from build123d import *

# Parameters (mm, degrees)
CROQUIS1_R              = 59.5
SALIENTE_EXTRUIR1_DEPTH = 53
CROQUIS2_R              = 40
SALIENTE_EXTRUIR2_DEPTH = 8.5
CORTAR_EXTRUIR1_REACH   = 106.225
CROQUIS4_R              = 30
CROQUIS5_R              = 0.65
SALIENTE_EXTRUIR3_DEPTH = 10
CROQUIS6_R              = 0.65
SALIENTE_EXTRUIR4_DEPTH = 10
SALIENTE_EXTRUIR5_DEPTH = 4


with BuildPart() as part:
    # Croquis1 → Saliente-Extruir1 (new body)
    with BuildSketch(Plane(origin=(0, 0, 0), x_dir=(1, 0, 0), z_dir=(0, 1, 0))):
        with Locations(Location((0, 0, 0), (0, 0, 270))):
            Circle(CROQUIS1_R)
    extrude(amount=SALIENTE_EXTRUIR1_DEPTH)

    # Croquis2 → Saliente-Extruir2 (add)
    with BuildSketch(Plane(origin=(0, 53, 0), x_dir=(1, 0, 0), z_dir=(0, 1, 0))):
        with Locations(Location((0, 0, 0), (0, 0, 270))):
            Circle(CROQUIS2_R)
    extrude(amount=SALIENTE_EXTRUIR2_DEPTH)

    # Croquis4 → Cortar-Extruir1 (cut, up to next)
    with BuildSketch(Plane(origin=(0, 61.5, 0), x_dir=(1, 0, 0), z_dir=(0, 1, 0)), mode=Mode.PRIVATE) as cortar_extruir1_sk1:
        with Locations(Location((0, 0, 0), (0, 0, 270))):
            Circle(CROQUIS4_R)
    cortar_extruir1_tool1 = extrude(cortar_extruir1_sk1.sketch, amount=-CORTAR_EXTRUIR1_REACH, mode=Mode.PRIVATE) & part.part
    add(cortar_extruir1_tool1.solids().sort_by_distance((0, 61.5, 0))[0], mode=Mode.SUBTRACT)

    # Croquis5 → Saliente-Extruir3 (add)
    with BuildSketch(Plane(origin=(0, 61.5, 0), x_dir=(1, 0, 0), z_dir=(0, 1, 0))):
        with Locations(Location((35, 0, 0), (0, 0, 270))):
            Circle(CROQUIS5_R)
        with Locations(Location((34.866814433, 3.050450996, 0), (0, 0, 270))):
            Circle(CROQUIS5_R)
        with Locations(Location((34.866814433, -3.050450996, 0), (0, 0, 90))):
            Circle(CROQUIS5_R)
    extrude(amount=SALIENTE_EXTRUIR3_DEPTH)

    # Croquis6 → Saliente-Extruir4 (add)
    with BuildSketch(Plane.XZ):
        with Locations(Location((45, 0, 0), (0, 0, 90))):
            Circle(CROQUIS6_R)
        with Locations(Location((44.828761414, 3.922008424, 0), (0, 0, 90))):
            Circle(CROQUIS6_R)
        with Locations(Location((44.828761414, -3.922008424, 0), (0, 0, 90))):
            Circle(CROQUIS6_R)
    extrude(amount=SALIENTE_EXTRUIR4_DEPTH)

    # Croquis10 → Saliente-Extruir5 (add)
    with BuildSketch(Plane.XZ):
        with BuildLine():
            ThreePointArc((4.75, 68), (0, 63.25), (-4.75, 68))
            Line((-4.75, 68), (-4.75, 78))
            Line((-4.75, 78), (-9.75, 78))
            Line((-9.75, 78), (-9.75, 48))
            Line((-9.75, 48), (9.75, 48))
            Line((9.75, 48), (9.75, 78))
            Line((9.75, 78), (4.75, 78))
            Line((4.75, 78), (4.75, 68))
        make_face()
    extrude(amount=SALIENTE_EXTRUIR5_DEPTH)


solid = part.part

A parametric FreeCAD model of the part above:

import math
import FreeCAD as App
import Part
import Sketcher
from FreeCAD import Vector

doc = App.newDocument("Part")
body = doc.addObject("PartDesign::Body", "Body")

sketch1 = doc.addObject("Sketcher::SketchObject", "Sketch")
body.addObject(sketch1)
sketch1.AttachmentSupport = (doc.XZ_Plane, [""])
sketch1.MapMode = "FlatFace"
sketch1.addGeometry(Part.Circle(Vector(0, 0, 0), Vector(0, 0, 1), 60), False)
sketch1.addConstraint(Sketcher.Constraint("Coincident", 0, 3, -1, 1))
sketch1.addConstraint(Sketcher.Constraint("Diameter", 0, 119.0))
pad1 = doc.addObject("PartDesign::Pad", "Pad")
body.addObject(pad1)
pad1.Profile = sketch1
pad1.Length = 53
pad1.Reversed = True

sketch2 = doc.addObject("Sketcher::SketchObject", "Sketch001")
body.addObject(sketch2)
sketch2.AttachmentSupport = (doc.XZ_Plane, [""])
sketch2.MapMode = "FlatFace"
sketch2.AttachmentOffset = App.Placement(Vector(0, 0, -53), App.Rotation())
sketch2.addGeometry(Part.Circle(Vector(0, 0, 0), Vector(0, 0, 1), 40), False)
sketch2.addConstraint(Sketcher.Constraint("Coincident", 0, 3, -1, 1))
sketch2.addConstraint(Sketcher.Constraint("Diameter", 0, 80.0))
pad2 = doc.addObject("PartDesign::Pad", "Pad001")
body.addObject(pad2)
pad2.Profile = sketch2
pad2.Length = 8.5
pad2.Reversed = True

sketch3 = doc.addObject("Sketcher::SketchObject", "Sketch002")
body.addObject(sketch3)
sketch3.AttachmentSupport = (doc.XZ_Plane, [""])
sketch3.MapMode = "FlatFace"
sketch3.AttachmentOffset = App.Placement(Vector(0, 0, -61.5), App.Rotation())
sketch3.addGeometry(Part.Circle(Vector(0, 0, 0), Vector(0, 0, 1), 30), False)
sketch3.addConstraint(Sketcher.Constraint("Coincident", 0, 3, -1, 1))
sketch3.addConstraint(Sketcher.Constraint("Diameter", 0, 60.0))
pocket1 = doc.addObject("PartDesign::Pocket", "Pocket")
body.addObject(pocket1)
pocket1.Profile = sketch3
pocket1.Type = "UpToFirst"
pocket1.Reversed = True

sketch4 = doc.addObject("Sketcher::SketchObject", "Sketch003")
body.addObject(sketch4)
sketch4.AttachmentSupport = (doc.XZ_Plane, [""])
sketch4.MapMode = "FlatFace"
sketch4.AttachmentOffset = App.Placement(Vector(0, 0, -61.5), App.Rotation())
sketch4.addGeometry(Part.Circle(Vector(35, 0, 0), Vector(0, 0, 1), 0.7), False)
sketch4.addGeometry(Part.Circle(Vector(34.9, -3.1, 0), Vector(0, 0, 1), 0.7), False)
sketch4.addGeometry(Part.Circle(Vector(34.9, 3.1, 0), Vector(0, 0, 1), 0.7), False)
sketch4.addConstraint(Sketcher.Constraint("Equal", 0, 1))
sketch4.addConstraint(Sketcher.Constraint("Equal", 1, 2))
sketch4.addConstraint(Sketcher.Constraint("Symmetric", 1, 3, 2, 3, -1))
sketch4.addConstraint(Sketcher.Constraint("PointOnObject", 0, 3, -1))
sketch4.addConstraint(Sketcher.Constraint("Diameter", 0, 1.3))
sketch4.addConstraint(Sketcher.Constraint("DistanceX", -1, 1, 0, 3, 35.0))
sketch4.addConstraint(Sketcher.Constraint("DistanceY", 1, 3, 2, 3, 6.100902))
sketch4.addConstraint(Sketcher.Constraint("DistanceX", -1, 1, 1, 3, 34.866814))
pad3 = doc.addObject("PartDesign::Pad", "Pad002")
body.addObject(pad3)
pad3.Profile = sketch4
pad3.Length = 10
pad3.Reversed = True

sketch5 = doc.addObject("Sketcher::SketchObject", "Sketch004")
body.addObject(sketch5)
sketch5.AttachmentSupport = (doc.XZ_Plane, [""])
sketch5.MapMode = "FlatFace"
sketch5.addGeometry(Part.Circle(Vector(45, 0, 0), Vector(0, 0, 1), 0.7), False)
sketch5.addGeometry(Part.Circle(Vector(44.8, 3.9, 0), Vector(0, 0, 1), 0.7), False)
sketch5.addGeometry(Part.Circle(Vector(44.8, -3.9, 0), Vector(0, 0, 1), 0.7), False)
sketch5.addConstraint(Sketcher.Constraint("Equal", 0, 1))
sketch5.addConstraint(Sketcher.Constraint("Equal", 1, 2))
sketch5.addConstraint(Sketcher.Constraint("Symmetric", 1, 3, 2, 3, -1))
sketch5.addConstraint(Sketcher.Constraint("PointOnObject", 0, 3, -1))
sketch5.addConstraint(Sketcher.Constraint("Diameter", 0, 1.3))
sketch5.addConstraint(Sketcher.Constraint("DistanceX", -1, 1, 0, 3, 45.0))
sketch5.addConstraint(Sketcher.Constraint("DistanceX", -1, 1, 1, 3, 44.828761))
sketch5.addConstraint(Sketcher.Constraint("DistanceY", -1, 1, 1, 3, 3.922008))
pad4 = doc.addObject("PartDesign::Pad", "Pad003")
body.addObject(pad4)
pad4.Profile = sketch5
pad4.Length = 10

sketch6 = doc.addObject("Sketcher::SketchObject", "Sketch005")
body.addObject(sketch6)
sketch6.AttachmentSupport = (doc.XZ_Plane, [""])
sketch6.MapMode = "FlatFace"
sketch6.addGeometry(Part.ArcOfCircle(Part.Circle(Vector(0, 68, 0), Vector(0, 0, 1), 4.8), math.radians(180), math.radians(360)), False)
sketch6.addGeometry(Part.LineSegment(Vector(-4.8, 68, 0), Vector(-4.8, 78, 0)), False)
sketch6.addGeometry(Part.LineSegment(Vector(-4.8, 78, 0), Vector(-9.8, 78, 0)), False)
sketch6.addGeometry(Part.LineSegment(Vector(-9.8, 78, 0), Vector(-9.8, 48, 0)), False)
sketch6.addGeometry(Part.LineSegment(Vector(-9.8, 48, 0), Vector(9.8, 48, 0)), False)
sketch6.addGeometry(Part.LineSegment(Vector(9.8, 48, 0), Vector(9.8, 78, 0)), False)
sketch6.addGeometry(Part.LineSegment(Vector(9.8, 78, 0), Vector(4.8, 78, 0)), False)
sketch6.addGeometry(Part.LineSegment(Vector(4.8, 78, 0), Vector(4.8, 68, 0)), False)
sketch6.addConstraint(Sketcher.Constraint("Tangent", 0, 1, 1, 1))
sketch6.addConstraint(Sketcher.Constraint("Coincident", 1, 2, 2, 1))
sketch6.addConstraint(Sketcher.Constraint("Coincident", 2, 2, 3, 1))
sketch6.addConstraint(Sketcher.Constraint("Coincident", 3, 2, 4, 1))
sketch6.addConstraint(Sketcher.Constraint("Coincident", 4, 2, 5, 1))
sketch6.addConstraint(Sketcher.Constraint("Coincident", 5, 2, 6, 1))
sketch6.addConstraint(Sketcher.Constraint("Coincident", 6, 2, 7, 1))
sketch6.addConstraint(Sketcher.Constraint("Tangent", 7, 2, 0, 2))
sketch6.addConstraint(Sketcher.Constraint("Vertical", 1))
sketch6.addConstraint(Sketcher.Constraint("Horizontal", 2))
sketch6.addConstraint(Sketcher.Constraint("Vertical", 3))
sketch6.addConstraint(Sketcher.Constraint("Horizontal", 4))
sketch6.addConstraint(Sketcher.Constraint("Vertical", 5))
sketch6.addConstraint(Sketcher.Constraint("Horizontal", 6))
sketch6.addConstraint(Sketcher.Constraint("Vertical", 7))
sketch6.addConstraint(Sketcher.Constraint("Symmetric", 2, 2, 5, 2, -2))
sketch6.addConstraint(Sketcher.Constraint("PointOnObject", 0, 3, -2))
sketch6.addConstraint(Sketcher.Constraint("DistanceX", 2, 2, 2, 1, 5.0))
sketch6.addConstraint(Sketcher.Constraint("DistanceY", 1, 1, 1, 2, 10.0))
sketch6.addConstraint(Sketcher.Constraint("DistanceY", 3, 2, 3, 1, 30.0))
sketch6.addConstraint(Sketcher.Constraint("Radius", 0, 4.75))
sketch6.addConstraint(Sketcher.Constraint("DistanceY", -1, 1, 0, 3, 68.0))
pad5 = doc.addObject("PartDesign::Pad", "Pad004")
body.addObject(pad5)
pad5.Profile = sketch6
pad5.Length = 4

doc.recompute()
